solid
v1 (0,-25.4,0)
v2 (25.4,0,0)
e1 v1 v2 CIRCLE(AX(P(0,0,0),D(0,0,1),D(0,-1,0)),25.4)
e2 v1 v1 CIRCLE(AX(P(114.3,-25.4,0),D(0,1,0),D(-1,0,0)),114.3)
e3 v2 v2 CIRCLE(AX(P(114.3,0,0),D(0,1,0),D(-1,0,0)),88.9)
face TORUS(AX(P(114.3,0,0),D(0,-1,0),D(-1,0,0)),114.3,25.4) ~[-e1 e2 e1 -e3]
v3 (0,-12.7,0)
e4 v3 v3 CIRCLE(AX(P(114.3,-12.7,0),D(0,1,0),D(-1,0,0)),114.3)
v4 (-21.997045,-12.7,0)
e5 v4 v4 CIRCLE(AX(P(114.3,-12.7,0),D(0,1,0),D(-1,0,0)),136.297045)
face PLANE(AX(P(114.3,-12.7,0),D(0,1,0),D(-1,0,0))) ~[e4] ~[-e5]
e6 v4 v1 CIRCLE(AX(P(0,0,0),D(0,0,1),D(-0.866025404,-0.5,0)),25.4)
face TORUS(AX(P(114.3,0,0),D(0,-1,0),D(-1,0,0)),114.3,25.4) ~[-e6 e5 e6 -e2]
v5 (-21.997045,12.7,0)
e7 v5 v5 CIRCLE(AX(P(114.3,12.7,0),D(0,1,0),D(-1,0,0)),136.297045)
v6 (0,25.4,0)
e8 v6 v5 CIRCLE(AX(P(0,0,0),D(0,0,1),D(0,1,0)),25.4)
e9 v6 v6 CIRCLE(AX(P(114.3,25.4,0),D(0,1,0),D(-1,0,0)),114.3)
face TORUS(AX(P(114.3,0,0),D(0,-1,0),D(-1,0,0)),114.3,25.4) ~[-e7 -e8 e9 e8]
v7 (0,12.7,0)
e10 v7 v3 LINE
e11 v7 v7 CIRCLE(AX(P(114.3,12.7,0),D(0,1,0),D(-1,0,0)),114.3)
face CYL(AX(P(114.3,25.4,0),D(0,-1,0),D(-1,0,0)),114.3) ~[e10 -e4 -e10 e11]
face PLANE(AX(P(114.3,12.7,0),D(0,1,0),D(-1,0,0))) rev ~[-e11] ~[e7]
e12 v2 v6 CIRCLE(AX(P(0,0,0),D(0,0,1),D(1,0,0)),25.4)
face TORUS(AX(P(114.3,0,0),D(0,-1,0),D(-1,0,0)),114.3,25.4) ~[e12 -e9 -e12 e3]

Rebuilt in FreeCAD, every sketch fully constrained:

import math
import FreeCAD as App
import Part
import Sketcher

V = App.Vector
Q = App.Units.Quantity

doc = App.newDocument("Part")
body = doc.addObject("PartDesign::Body", "Body")

sketch1 = body.newObject("Sketcher::SketchObject", "Sketch")
sketch1.AttachmentSupport = (doc.getObject("XY_Plane"), [""])
sketch1.MapMode = "FlatFace"
sketch1.addGeometry([
    Part.ArcOfCircle(Part.Circle(V(0, 0, 0), V(0, 0, 1), 25), math.radians(90), math.radians(150)),
    Part.LineSegment(V(-22, 13, 0), V(0, 13, 0)),
    Part.LineSegment(V(0, 13, 0), V(0, -13, 0)),
    Part.LineSegment(V(0, -13, 0), V(-22, -13, 0)),
    Part.ArcOfCircle(Part.Circle(V(0, 0, 0), V(0, 0, 1), 25), math.radians(-150), math.radians(-90)),
    Part.ArcOfCircle(Part.Circle(V(0, 0, 0), V(0, 0, 1), 25), math.radians(-90), math.radians(0)),
    Part.ArcOfCircle(Part.Circle(V(0, 0, 0), V(0, 0, 1), 25), math.radians(0), math.radians(90)),
], False)
sketch1.addGeometry(Part.LineSegment(V(114, -25, 0), V(114, 25, 0)), True)
sketch1.addConstraint([
    Sketcher.Constraint("Coincident", 0, 2, 1, 1),
    Sketcher.Constraint("Coincident", 1, 2, 2, 1),
    Sketcher.Constraint("Coincident", 2, 2, 3, 1),
    Sketcher.Constraint("Coincident", 3, 2, 4, 1),
    Sketcher.Constraint("Tangent", 4, 2, 5, 1),
    Sketcher.Constraint("Tangent", 5, 2, 6, 1),
    Sketcher.Constraint("Tangent", 6, 2, 0, 1),
    Sketcher.Constraint("Horizontal", 1),
    Sketcher.Constraint("Vertical", 2),
    Sketcher.Constraint("Horizontal", 3),
    Sketcher.Constraint("Vertical", 7),
    Sketcher.Constraint("Coincident", 0, 3, -1, 1),
    Sketcher.Constraint("Coincident", 4, 3, -1, 1),
    Sketcher.Constraint("Equal", 0, 4),
    Sketcher.Constraint("Symmetric", 1, 2, 2, 2, -1, 1),
    Sketcher.Constraint("PointOnObject", 4, 2, -2),
    Sketcher.Constraint("PointOnObject", 5, 2, -1),
    Sketcher.Constraint("PointOnObject", 6, 2, -2),
    Sketcher.Constraint("Horizontal", 4, 2, 7, 1),
    Sketcher.Constraint("Horizontal", 6, 2, 7, 2),
    Sketcher.Constraint("Radius", 0, Q("1 in")),
    Sketcher.Constraint("DistanceY", 2, 2, 2, 1, Q("1 in")),
    Sketcher.Constraint("DistanceX", -1, 1, 7, 1, Q("4.5 in")),
])
revolution = body.newObject("PartDesign::Revolution", "Revolution")
revolution.Profile = sketch1
revolution.ReferenceAxis = (sketch1, ["Axis0"])
revolution.Angle = 360

doc.recompute()
